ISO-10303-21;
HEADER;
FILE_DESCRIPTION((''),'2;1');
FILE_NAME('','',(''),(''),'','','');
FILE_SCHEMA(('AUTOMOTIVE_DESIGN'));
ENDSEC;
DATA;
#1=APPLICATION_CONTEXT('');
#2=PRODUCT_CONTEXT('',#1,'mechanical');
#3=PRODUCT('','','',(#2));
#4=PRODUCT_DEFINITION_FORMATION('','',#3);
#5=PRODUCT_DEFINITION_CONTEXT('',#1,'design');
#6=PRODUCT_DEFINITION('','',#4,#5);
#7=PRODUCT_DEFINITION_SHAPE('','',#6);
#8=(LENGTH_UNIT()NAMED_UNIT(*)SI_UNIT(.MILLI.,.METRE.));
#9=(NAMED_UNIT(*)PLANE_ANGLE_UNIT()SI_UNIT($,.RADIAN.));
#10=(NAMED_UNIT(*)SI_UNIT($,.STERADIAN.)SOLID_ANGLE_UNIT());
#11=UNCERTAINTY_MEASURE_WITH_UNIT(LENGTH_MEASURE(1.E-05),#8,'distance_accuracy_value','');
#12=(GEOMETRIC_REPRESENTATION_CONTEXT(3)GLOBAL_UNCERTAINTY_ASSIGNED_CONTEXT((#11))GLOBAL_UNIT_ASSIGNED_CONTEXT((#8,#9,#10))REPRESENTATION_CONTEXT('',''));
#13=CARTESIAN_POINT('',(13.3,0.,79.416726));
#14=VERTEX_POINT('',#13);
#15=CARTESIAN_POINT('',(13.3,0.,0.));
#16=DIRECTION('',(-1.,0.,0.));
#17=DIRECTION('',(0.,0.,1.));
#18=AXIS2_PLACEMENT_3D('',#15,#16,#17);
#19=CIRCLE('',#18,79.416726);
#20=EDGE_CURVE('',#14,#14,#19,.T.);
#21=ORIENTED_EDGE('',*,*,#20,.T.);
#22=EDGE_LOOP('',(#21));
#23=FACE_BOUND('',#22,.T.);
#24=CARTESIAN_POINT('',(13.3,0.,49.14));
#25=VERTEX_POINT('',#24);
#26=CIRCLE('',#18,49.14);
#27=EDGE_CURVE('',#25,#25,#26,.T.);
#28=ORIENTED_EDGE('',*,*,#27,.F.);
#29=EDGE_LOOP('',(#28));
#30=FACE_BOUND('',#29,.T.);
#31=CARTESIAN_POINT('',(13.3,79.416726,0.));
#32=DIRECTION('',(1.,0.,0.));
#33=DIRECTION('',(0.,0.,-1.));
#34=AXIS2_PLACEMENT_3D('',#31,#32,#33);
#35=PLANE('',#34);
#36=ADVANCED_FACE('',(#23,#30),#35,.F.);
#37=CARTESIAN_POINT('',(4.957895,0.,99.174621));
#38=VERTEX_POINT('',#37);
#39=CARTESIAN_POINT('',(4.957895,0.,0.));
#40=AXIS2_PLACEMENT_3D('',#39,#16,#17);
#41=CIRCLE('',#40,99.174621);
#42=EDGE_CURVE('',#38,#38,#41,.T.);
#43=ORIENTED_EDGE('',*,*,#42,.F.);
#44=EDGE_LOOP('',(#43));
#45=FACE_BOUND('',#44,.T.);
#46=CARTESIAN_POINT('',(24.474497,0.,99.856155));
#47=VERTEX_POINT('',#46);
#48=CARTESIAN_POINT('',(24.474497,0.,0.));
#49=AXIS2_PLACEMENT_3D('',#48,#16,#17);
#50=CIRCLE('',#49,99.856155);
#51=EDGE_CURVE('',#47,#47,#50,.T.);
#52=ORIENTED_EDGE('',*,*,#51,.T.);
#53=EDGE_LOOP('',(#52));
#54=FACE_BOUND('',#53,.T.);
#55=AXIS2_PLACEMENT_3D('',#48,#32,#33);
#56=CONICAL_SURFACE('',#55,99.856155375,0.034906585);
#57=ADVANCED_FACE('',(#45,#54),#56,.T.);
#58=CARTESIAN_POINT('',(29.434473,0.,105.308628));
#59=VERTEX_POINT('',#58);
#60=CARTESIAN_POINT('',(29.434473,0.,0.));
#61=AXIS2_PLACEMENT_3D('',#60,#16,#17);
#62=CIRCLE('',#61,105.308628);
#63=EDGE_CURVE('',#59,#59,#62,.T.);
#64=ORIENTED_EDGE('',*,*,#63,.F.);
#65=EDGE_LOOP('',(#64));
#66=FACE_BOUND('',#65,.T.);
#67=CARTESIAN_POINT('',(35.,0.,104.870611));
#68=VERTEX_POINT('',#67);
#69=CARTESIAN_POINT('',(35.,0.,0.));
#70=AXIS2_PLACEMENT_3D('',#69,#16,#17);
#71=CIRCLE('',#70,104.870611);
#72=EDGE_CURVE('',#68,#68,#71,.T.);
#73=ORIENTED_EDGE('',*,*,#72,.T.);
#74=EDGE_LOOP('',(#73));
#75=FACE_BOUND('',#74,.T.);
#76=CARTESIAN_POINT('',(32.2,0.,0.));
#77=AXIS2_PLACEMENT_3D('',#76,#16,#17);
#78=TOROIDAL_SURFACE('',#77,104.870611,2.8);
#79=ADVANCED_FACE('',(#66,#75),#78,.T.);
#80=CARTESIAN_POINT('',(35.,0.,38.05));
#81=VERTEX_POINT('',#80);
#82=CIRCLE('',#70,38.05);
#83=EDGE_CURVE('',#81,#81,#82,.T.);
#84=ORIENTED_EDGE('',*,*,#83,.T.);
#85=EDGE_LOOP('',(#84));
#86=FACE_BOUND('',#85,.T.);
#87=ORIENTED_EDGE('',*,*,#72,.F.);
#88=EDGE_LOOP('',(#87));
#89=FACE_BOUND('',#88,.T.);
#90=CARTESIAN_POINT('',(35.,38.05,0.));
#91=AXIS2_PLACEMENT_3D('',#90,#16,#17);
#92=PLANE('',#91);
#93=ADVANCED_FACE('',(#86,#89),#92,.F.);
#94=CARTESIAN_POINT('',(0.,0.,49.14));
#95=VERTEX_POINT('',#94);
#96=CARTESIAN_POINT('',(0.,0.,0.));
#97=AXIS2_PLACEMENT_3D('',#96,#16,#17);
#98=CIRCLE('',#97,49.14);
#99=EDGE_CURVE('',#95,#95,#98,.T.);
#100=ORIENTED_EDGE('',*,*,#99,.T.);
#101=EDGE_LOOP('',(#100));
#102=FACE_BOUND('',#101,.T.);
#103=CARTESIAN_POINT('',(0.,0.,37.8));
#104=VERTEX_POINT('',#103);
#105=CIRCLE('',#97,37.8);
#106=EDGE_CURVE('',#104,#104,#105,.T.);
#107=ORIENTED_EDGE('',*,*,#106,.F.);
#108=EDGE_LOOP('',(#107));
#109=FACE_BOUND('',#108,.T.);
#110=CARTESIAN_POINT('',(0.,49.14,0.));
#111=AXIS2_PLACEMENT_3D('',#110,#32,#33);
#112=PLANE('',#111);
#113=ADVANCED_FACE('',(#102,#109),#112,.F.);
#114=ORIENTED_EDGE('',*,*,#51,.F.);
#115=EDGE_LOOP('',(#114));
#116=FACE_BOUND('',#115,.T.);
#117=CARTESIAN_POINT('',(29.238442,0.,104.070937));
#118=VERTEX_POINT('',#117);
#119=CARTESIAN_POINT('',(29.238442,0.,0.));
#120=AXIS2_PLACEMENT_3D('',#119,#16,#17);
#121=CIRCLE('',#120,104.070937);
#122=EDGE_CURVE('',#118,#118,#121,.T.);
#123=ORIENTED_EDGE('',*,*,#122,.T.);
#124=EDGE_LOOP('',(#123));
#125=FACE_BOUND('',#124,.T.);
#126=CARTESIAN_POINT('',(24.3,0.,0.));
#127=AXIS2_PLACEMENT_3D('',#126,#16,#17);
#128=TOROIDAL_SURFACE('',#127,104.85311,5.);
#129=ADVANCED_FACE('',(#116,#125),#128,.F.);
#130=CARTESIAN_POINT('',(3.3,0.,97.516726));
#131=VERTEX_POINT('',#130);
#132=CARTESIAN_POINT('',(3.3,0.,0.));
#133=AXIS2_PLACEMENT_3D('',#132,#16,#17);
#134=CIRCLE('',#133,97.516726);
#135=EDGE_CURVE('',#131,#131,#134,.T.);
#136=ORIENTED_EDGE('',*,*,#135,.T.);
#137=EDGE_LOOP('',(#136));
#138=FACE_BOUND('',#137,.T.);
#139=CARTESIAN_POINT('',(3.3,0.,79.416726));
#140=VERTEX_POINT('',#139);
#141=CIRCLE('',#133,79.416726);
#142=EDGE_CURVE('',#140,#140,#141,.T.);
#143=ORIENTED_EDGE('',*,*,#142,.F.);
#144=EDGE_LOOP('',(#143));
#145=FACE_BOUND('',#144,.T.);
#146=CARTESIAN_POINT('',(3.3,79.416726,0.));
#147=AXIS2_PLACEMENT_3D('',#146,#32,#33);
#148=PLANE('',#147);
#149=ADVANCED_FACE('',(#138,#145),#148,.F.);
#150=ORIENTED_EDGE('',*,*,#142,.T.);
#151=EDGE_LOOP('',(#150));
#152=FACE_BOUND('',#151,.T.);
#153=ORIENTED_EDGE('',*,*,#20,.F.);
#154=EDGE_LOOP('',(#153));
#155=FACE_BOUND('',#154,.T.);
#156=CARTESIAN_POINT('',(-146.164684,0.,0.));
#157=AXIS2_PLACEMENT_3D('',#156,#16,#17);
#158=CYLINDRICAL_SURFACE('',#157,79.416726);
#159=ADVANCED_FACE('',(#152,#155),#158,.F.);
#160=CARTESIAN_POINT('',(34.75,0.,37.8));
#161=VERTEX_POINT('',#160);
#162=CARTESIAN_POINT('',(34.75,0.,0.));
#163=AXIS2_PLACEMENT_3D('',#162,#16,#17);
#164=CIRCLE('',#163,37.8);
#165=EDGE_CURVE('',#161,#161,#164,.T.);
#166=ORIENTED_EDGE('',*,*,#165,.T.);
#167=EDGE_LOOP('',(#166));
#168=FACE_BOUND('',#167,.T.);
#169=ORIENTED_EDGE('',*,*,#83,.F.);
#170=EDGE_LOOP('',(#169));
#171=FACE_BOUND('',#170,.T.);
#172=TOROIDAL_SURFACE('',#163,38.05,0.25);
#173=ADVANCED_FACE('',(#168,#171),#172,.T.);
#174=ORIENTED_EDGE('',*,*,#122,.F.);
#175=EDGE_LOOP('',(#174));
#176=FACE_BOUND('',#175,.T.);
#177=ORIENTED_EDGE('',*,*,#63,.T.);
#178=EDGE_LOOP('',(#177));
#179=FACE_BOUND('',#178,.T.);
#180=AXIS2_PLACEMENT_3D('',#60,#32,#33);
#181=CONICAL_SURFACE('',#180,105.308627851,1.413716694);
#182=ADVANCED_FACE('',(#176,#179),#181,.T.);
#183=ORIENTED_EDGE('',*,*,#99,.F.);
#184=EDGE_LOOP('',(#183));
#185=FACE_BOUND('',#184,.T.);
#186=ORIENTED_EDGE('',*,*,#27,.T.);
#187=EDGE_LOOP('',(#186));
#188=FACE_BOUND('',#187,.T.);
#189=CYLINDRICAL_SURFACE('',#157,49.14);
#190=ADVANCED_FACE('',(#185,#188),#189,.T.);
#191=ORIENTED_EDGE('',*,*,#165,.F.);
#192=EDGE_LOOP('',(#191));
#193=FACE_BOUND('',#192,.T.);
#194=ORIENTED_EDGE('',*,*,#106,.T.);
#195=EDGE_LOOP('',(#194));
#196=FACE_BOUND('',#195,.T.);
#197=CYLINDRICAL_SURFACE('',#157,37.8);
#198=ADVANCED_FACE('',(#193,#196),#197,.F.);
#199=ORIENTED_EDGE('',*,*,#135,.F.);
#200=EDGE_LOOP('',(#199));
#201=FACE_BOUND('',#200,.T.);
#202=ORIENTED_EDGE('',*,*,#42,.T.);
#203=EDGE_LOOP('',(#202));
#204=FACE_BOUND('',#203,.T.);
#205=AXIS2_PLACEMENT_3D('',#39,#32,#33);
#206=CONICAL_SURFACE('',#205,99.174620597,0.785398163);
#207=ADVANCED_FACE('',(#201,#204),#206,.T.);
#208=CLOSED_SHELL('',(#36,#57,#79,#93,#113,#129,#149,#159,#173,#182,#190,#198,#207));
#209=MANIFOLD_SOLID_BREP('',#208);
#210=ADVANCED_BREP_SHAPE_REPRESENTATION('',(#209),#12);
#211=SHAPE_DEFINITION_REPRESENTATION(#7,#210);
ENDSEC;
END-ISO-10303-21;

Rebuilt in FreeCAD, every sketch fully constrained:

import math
import FreeCAD as App
import Part
import Sketcher

V = App.Vector
Q = App.Units.Quantity

doc = App.newDocument("Part")
params = doc.addObject("Spreadsheet::Sheet", "Params")
for row, (alias, value) in enumerate([
    ("sketch1_radius", "5 mm"),
    ("sketch1_radius2", "2.8 mm"),
    ("sketch1_width", "10 mm"),
    ("sketch1_radius3", "0.25 mm"),
    ("sketch1_width2", "13.3 mm"),
    ("revolution_angle", "360 deg"),
], start=1):
    params.set(f"A{row}", alias)
    params.set(f"B{row}", "=" + value)
    params.setAlias(f"B{row}", alias)

body = doc.addObject("PartDesign::Body", "Body")

# Sketch on XY plane
sketch1 = doc.addObject("Sketcher::SketchObject", "Sketch")
body.addObject(sketch1)
sketch1.AttachmentSupport = (doc.XY_Plane, [""])
sketch1.MapMode = "FlatFace"
sketch1.addGeometry([
    Part.LineSegment(V(0, 37.8, 0), V(34.75, 37.8, 0)),  # 0
    Part.ArcOfCircle(Part.Circle(V(34.75, 38.05, 0), V(0, 0, 1), 0.25), math.radians(-90), math.radians(0)),  # 1
    Part.LineSegment(V(35, 38.05, 0), V(35, 104.87, 0)),  # 2
    Part.ArcOfCircle(Part.Circle(V(32.2, 104.87, 0), V(0, 0, 1), 2.8), math.radians(0), math.radians(171)),  # 3
    Part.LineSegment(V(29.43, 105.31, 0), V(29.24, 104.07, 0)),  # 4
    Part.ArcOfCircle(Part.Circle(V(24.3, 104.85, 0), V(0, 0, 1), 5), math.radians(-88), math.radians(-9)),  # 5
    Part.LineSegment(V(24.47, 99.86, 0), V(4.96, 99.17, 0)),  # 6
    Part.LineSegment(V(4.96, 99.17, 0), V(3.3, 97.52, 0)),  # 7
    Part.LineSegment(V(3.3, 97.52, 0), V(3.3, 79.42, 0)),  # 8
    Part.LineSegment(V(3.3, 79.42, 0), V(13.3, 79.42, 0)),  # 9
    Part.LineSegment(V(13.3, 79.42, 0), V(13.3, 49.14, 0)),  # 10
    Part.LineSegment(V(13.3, 49.14, 0), V(0, 49.14, 0)),  # 11
    Part.LineSegment(V(0, 49.14, 0), V(0, 37.8, 0)),  # 12
], False)
sketch1.addConstraint([
    Sketcher.Constraint("Tangent", 0, 2, 1, 1),
    Sketcher.Constraint("Tangent", 1, 2, 2, 1),
    Sketcher.Constraint("Tangent", 2, 2, 3, 1),
    Sketcher.Constraint("Tangent", 3, 2, 4, 1),
    Sketcher.Constraint("Tangent", 4, 2, 5, 2),
    Sketcher.Constraint("Tangent", 5, 1, 6, 1),
    Sketcher.Constraint("Coincident", 6, 2, 7, 1),
    Sketcher.Constraint("Coincident", 7, 2, 8, 1),
    Sketcher.Constraint("Coincident", 8, 2, 9, 1),
    Sketcher.Constraint("Coincident", 9, 2, 10, 1),
    Sketcher.Constraint("Coincident", 10, 2, 11, 1),
    Sketcher.Constraint("Coincident", 11, 2, 12, 1),
    Sketcher.Constraint("Coincident", 12, 2, 0, 1),
    Sketcher.Constraint("Horizontal", 0),
    Sketcher.Constraint("Vertical", 2),
    Sketcher.Constraint("Vertical", 8),
    Sketcher.Constraint("Horizontal", 9),
    Sketcher.Constraint("Vertical", 10),
    Sketcher.Constraint("Horizontal", 11),
    Sketcher.Constraint("Vertical", 12),
    Sketcher.Constraint("PointOnObject", 11, 2, -2),
    Sketcher.Constraint("Radius", 5, 5.0),
    Sketcher.Constraint("Radius", 3, 2.8),
    Sketcher.Constraint("DistanceX", 9, 1, 9, 2, 10.0),
    Sketcher.Constraint("Angle", 4, Q("-99 deg")),
    Sketcher.Constraint("Angle", 6, Q("-178 deg")),
    Sketcher.Constraint("Angle", 7, Q("-135 deg")),
    Sketcher.Constraint("Radius", 1, 0.25),
    Sketcher.Constraint("DistanceX", 11, 2, 11, 1, 13.3),
    Sketcher.Constraint("DistanceY", 8, 2, 8, 1, 18.1),
    Sketcher.Constraint("DistanceX", -1, 1, 1, 2, 35.0),
    Sketcher.Constraint("DistanceX", 7, 2, 5, 3, 21.0),
    Sketcher.Constraint("DistanceY", 12, 2, 12, 1, 11.34),
    Sketcher.Constraint("DistanceY", -1, 1, 0, 2, 37.8),
    Sketcher.Constraint("Distance", 6, 19.528499),
    Sketcher.Constraint("DistanceY", 2, 1, 2, 2, 66.820611),
])
sketch1.setExpression("Constraints[21]", "Params.sketch1_radius")
sketch1.setExpression("Constraints[22]", "Params.sketch1_radius2")
sketch1.setExpression("Constraints[23]", "Params.sketch1_width")
sketch1.setExpression("Constraints[27]", "Params.sketch1_radius3")
sketch1.setExpression("Constraints[28]", "Params.sketch1_width2")
revolution = doc.addObject("PartDesign::Revolution", "Revolution")
body.addObject(revolution)
revolution.Profile = sketch1
revolution.ReferenceAxis = (sketch1, ["H_Axis"])
revolution.setExpression("Angle", "Params.revolution_angle")

doc.recompute()
